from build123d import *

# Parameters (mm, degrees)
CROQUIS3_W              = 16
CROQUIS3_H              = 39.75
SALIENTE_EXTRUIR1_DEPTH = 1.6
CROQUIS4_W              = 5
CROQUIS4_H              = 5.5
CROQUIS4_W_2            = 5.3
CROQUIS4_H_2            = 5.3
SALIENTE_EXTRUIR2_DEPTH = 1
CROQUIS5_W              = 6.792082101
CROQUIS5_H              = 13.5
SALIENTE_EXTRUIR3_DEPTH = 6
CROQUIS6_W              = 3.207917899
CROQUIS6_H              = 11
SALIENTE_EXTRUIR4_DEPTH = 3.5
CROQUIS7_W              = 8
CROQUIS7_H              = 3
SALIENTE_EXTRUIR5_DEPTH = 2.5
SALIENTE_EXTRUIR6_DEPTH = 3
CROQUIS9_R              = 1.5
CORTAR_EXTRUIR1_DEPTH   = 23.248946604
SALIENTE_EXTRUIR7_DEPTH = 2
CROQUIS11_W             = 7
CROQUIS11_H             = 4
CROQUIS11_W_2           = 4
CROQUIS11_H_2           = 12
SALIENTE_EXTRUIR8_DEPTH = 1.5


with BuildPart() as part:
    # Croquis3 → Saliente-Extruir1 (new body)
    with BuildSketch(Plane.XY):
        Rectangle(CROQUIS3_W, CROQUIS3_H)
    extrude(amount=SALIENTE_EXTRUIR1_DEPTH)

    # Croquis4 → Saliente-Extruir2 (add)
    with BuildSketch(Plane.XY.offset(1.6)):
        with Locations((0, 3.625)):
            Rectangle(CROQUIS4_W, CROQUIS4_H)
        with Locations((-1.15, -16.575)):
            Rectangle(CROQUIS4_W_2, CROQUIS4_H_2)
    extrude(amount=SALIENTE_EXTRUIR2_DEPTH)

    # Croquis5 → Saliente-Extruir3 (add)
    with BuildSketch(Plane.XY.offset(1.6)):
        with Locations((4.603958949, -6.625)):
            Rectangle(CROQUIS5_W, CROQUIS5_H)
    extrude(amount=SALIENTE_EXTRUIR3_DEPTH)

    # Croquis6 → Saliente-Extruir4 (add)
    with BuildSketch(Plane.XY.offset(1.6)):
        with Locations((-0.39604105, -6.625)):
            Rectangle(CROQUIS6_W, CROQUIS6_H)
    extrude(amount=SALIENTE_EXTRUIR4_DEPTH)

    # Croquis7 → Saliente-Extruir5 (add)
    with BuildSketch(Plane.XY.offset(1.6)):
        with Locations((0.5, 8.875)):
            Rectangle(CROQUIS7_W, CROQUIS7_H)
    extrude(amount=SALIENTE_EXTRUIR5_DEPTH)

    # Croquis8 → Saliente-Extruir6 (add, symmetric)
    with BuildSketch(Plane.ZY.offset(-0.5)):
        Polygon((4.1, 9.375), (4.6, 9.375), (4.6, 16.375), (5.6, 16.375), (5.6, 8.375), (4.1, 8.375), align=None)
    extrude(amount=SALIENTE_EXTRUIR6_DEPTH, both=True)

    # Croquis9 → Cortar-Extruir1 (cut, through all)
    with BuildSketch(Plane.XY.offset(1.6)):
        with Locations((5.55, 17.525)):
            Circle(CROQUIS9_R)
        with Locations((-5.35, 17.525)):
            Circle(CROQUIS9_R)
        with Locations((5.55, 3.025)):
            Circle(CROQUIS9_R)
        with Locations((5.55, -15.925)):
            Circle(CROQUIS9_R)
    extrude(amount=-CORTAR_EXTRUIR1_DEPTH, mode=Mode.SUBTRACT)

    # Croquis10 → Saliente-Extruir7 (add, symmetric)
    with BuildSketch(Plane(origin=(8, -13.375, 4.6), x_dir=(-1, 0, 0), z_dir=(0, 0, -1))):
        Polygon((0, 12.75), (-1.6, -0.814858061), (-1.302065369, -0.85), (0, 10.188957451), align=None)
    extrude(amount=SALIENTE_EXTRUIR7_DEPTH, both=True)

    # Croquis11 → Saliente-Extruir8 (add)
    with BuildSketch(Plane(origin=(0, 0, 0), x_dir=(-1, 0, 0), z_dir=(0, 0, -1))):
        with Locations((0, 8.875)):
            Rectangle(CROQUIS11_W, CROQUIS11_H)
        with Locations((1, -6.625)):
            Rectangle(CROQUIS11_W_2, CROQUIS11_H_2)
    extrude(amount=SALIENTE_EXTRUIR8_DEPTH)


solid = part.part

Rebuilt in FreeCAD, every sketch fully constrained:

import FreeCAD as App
import Part
import Sketcher
Q = App.Units.Quantity


def add_polygon(sketch, points):
    """Adds a closed chain of lines whose ends are joined by coincident constraints."""
    first, n = sketch.GeometryCount, len(points)
    for a, b in zip(points, points[1:] + points[:1]):
        sketch.addGeometry(Part.LineSegment(App.Vector(*a, 0), App.Vector(*b, 0)), False)
    for i in range(n):
        sketch.addConstraint(Sketcher.Constraint("Coincident", first + i, 2, first + (i + 1) % n, 1))

doc = App.newDocument("Part")
body = doc.addObject("PartDesign::Body", "Body")

sketch1 = doc.addObject("Sketcher::SketchObject", "Sketch")
body.addObject(sketch1)
sketch1.AttachmentSupport = (doc.XY_Plane, [""])
sketch1.MapMode = "FlatFace"
add_polygon(sketch1, [(-8, 19.875), (-8, -19.875), (8, -19.875), (8, 19.875)])
sketch1.addConstraint(Sketcher.Constraint("Vertical", 0))
sketch1.addConstraint(Sketcher.Constraint("Horizontal", 1))
sketch1.addConstraint(Sketcher.Constraint("Vertical", 2))
sketch1.addConstraint(Sketcher.Constraint("Horizontal", 3))
sketch1.addConstraint(Sketcher.Constraint("Symmetric", 0, 2, 2, 2, -1, 1))
sketch1.addConstraint(Sketcher.Constraint("DistanceX", 1, 1, 1, 2, Q("16 mm")))
sketch1.addConstraint(Sketcher.Constraint("DistanceY", 0, 2, 0, 1, Q("39.75 mm")))
pad1 = doc.addObject("PartDesign::Pad", "Pad")
body.addObject(pad1)
pad1.Profile = sketch1
pad1.Length = 1.6

sketch2 = doc.addObject("Sketcher::SketchObject", "Sketch001")
body.addObject(sketch2)
sketch2.AttachmentSupport = (doc.XY_Plane, [""])
sketch2.MapMode = "FlatFace"
sketch2.AttachmentOffset = App.Placement(App.Vector(0, 0, 1.6), App.Rotation())
add_polygon(sketch2, [(-2.5, 6.375), (-2.5, 0.875), (2.5, 0.875), (2.5, 6.375)])
add_polygon(sketch2, [(-3.8, -13.925), (-3.8, -19.225), (1.5, -19.225), (1.5, -13.925)])
sketch2.addConstraint(Sketcher.Constraint("Vertical", 0))
sketch2.addConstraint(Sketcher.Constraint("Horizontal", 1))
sketch2.addConstraint(Sketcher.Constraint("Vertical", 2))
sketch2.addConstraint(Sketcher.Constraint("Horizontal", 3))
sketch2.addConstraint(Sketcher.Constraint("Vertical", 4))
sketch2.addConstraint(Sketcher.Constraint("Horizontal", 5))
sketch2.addConstraint(Sketcher.Constraint("Vertical", 6))
sketch2.addConstraint(Sketcher.Constraint("Horizontal", 7))
sketch2.addConstraint(Sketcher.Constraint("Equal", 7, 4))
sketch2.addConstraint(Sketcher.Constraint("DistanceX", 1, 1, 1, 2, Q("5 mm")))
sketch2.addConstraint(Sketcher.Constraint("DistanceX", 5, 1, 5, 2, Q("5.3 mm")))
sketch2.addConstraint(Sketcher.Constraint("DistanceY", 0, 2, 0, 1, Q("5.5 mm")))
sketch2.addConstraint(Sketcher.Constraint("DistanceX", 5, 2, 1, 2, Q("1 mm")))
sketch2.addConstraint(Sketcher.Constraint("DistanceX", 0, 2, -1, 1, Q("2.5 mm")))
sketch2.addConstraint(Sketcher.Constraint("DistanceY", 4, 2, 0, 2, Q("20.1 mm")))
sketch2.addConstraint(Sketcher.Constraint("DistanceY", -1, 1, 0, 2, Q("0.875 mm")))
pad2 = doc.addObject("PartDesign::Pad", "Pad001")
body.addObject(pad2)
pad2.Profile = sketch2
pad2.Length = 1

sketch3 = doc.addObject("Sketcher::SketchObject", "Sketch002")
body.addObject(sketch3)
sketch3.AttachmentSupport = (doc.XY_Plane, [""])
sketch3.MapMode = "FlatFace"
sketch3.AttachmentOffset = App.Placement(App.Vector(0, 0, 1.6), App.Rotation())
add_polygon(sketch3, [(1.207918, 0.125), (1.207918, -13.375), (8, -13.375), (8, 0.125)])
sketch3.addConstraint(Sketcher.Constraint("Vertical", 0))
sketch3.addConstraint(Sketcher.Constraint("Horizontal", 1))
sketch3.addConstraint(Sketcher.Constraint("Vertical", 2))
sketch3.addConstraint(Sketcher.Constraint("Horizontal", 3))
sketch3.addConstraint(Sketcher.Constraint("DistanceY", 0, 2, 0, 1, Q("13.5 mm")))
sketch3.addConstraint(Sketcher.Constraint("DistanceX", -1, 1, 1, 2, Q("8 mm")))
sketch3.addConstraint(Sketcher.Constraint("DistanceY", 0, 2, -1, 1, Q("13.375 mm")))
sketch3.addConstraint(Sketcher.Constraint("DistanceX", 1, 1, 1, 2, Q("6.792082 mm")))
pad3 = doc.addObject("PartDesign::Pad", "Pad002")
body.addObject(pad3)
pad3.Profile = sketch3
pad3.Length = 6

sketch4 = doc.addObject("Sketcher::SketchObject", "Sketch003")
body.addObject(sketch4)
sketch4.AttachmentSupport = (doc.XY_Plane, [""])
sketch4.MapMode = "FlatFace"
sketch4.AttachmentOffset = App.Placement(App.Vector(0, 0, 1.6), App.Rotation())
add_polygon(sketch4, [(-2, -1.125), (-2, -12.125), (1.207918, -12.125), (1.207918, -1.125)])
sketch4.addConstraint(Sketcher.Constraint("Vertical", 0))
sketch4.addConstraint(Sketcher.Constraint("Horizontal", 1))
sketch4.addConstraint(Sketcher.Constraint("Vertical", 2))
sketch4.addConstraint(Sketcher.Constraint("Horizontal", 3))
sketch4.addConstraint(Sketcher.Constraint("DistanceY", 0, 2, 0, 1, Q("11 mm")))
sketch4.addConstraint(Sketcher.Constraint("DistanceX", 0, 2, -1, 1, Q("2 mm")))
sketch4.addConstraint(Sketcher.Constraint("DistanceY", 0, 2, -1, 1, Q("12.125 mm")))
sketch4.addConstraint(Sketcher.Constraint("DistanceX", 1, 1, 1, 2, Q("3.207918 mm")))
pad4 = doc.addObject("PartDesign::Pad", "Pad003")
body.addObject(pad4)
pad4.Profile = sketch4
pad4.Length = 3.5

sketch5 = doc.addObject("Sketcher::SketchObject", "Sketch004")
body.addObject(sketch5)
sketch5.AttachmentSupport = (doc.XY_Plane, [""])
sketch5.MapMode = "FlatFace"
sketch5.AttachmentOffset = App.Placement(App.Vector(0, 0, 1.6), App.Rotation())
add_polygon(sketch5, [(-3.5, 10.375), (-3.5, 7.375), (4.5, 7.375), (4.5, 10.375)])
sketch5.addConstraint(Sketcher.Constraint("Vertical", 0))
sketch5.addConstraint(Sketcher.Constraint("Horizontal", 1))
sketch5.addConstraint(Sketcher.Constraint("Vertical", 2))
sketch5.addConstraint(Sketcher.Constraint("Horizontal", 3))
sketch5.addConstraint(Sketcher.Constraint("DistanceX", 1, 1, 1, 2, Q("8 mm")))
sketch5.addConstraint(Sketcher.Constraint("DistanceY", 0, 2, 0, 1, Q("3 mm")))
sketch5.addConstraint(Sketcher.Constraint("DistanceX", 0, 2, -1, 1, Q("3.5 mm")))
sketch5.addConstraint(Sketcher.Constraint("DistanceY", -1, 1, 0, 2, Q("7.375 mm")))
pad5 = doc.addObject("PartDesign::Pad", "Pad004")
body.addObject(pad5)
pad5.Profile = sketch5
pad5.Length = 2.5

sketch6 = doc.addObject("Sketcher::SketchObject", "Sketch005")
body.addObject(sketch6)
sketch6.AttachmentSupport = (doc.YZ_Plane, [""])
sketch6.MapMode = "FlatFace"
sketch6.AttachmentOffset = App.Placement(App.Vector(0, 0, 0.5), App.Rotation())
add_polygon(sketch6, [(9.375, 4.6), (9.375, 4.1), (8.375, 4.1), (8.375, 5.6), (16.375, 5.6), (16.375, 4.6)])
sketch6.addConstraint(Sketcher.Constraint("Vertical", 0))
sketch6.addConstraint(Sketcher.Constraint("Horizontal", 1))
sketch6.addConstraint(Sketcher.Constraint("Vertical", 2))
sketch6.addConstraint(Sketcher.Constraint("Horizontal", 3))
sketch6.addConstraint(Sketcher.Constraint("Vertical", 4))
sketch6.addConstraint(Sketcher.Constraint("Horizontal", 5))
sketch6.addConstraint(Sketcher.Constraint("Equal", 1, 4))
sketch6.addConstraint(Sketcher.Constraint("DistanceX", 1, 2, 1, 1, Q("1 mm")))
sketch6.addConstraint(Sketcher.Constraint("DistanceX", 3, 1, 3, 2, Q("8 mm")))
sketch6.addConstraint(Sketcher.Constraint("DistanceY", 0, 2, 0, 1, Q("0.5 mm")))
sketch6.addConstraint(Sketcher.Constraint("DistanceY", -1, 1, 0, 2, Q("4.1 mm")))
sketch6.addConstraint(Sketcher.Constraint("DistanceX", -1, 1, 0, 2, Q("9.375 mm")))
pad6 = doc.addObject("PartDesign::Pad", "Pad005")
body.addObject(pad6)
pad6.Profile = sketch6
pad6.Length = 6
pad6.Midplane = True

sketch7 = doc.addObject("Sketcher::SketchObject", "Sketch006")
body.addObject(sketch7)
sketch7.AttachmentSupport = (doc.XY_Plane, [""])
sketch7.MapMode = "FlatFace"
sketch7.AttachmentOffset = App.Placement(App.Vector(0, 0, 1.6), App.Rotation())
sketch7.addGeometry(Part.Circle(App.Vector(5.55, 17.525, 0), App.Vector(0, 0, 1), 1.5), False)
sketch7.addGeometry(Part.Circle(App.Vector(-5.35, 17.525, 0), App.Vector(0, 0, 1), 1.5), False)
sketch7.addGeometry(Part.Circle(App.Vector(5.55, 3.025, 0), App.Vector(0, 0, 1), 1.5), False)
sketch7.addGeometry(Part.Circle(App.Vector(5.55, -15.925, 0), App.Vector(0, 0, 1), 1.5), False)
sketch7.addConstraint(Sketcher.Constraint("Equal", 0, 1))
sketch7.addConstraint(Sketcher.Constraint("Equal", 1, 2))
sketch7.addConstraint(Sketcher.Constraint("Equal", 2, 3))
sketch7.addConstraint(Sketcher.Constraint("Horizontal", 0, 3, 1, 3))
sketch7.addConstraint(Sketcher.Constraint("Vertical", 0, 3, 2, 3))
sketch7.addConstraint(Sketcher.Constraint("Vertical", 2, 3, 3, 3))
sketch7.addConstraint(Sketcher.Constraint("Diameter", 0, Q("3 mm")))
sketch7.addConstraint(Sketcher.Constraint("DistanceX", 1, 3, 0, 3, Q("10.9 mm")))
sketch7.addConstraint(Sketcher.Constraint("DistanceY", 2, 3, 0, 3, Q("14.5 mm")))
sketch7.addConstraint(Sketcher.Constraint("DistanceX", -1, 1, 0, 3, Q("5.55 mm")))
sketch7.addConstraint(Sketcher.Constraint("DistanceY", 3, 3, 2, 3, Q("18.95 mm")))
sketch7.addConstraint(Sketcher.Constraint("DistanceY", -1, 1, 0, 3, Q("17.525 mm")))
pocket1 = doc.addObject("PartDesign::Pocket", "Pocket")
body.addObject(pocket1)
pocket1.Profile = sketch7
pocket1.Type = "ThroughAll"

sketch8 = doc.addObject("Sketcher::SketchObject", "Sketch007")
body.addObject(sketch8)
sketch8.AttachmentSupport = (doc.XY_Plane, [""])
sketch8.MapMode = "FlatFace"
sketch8.AttachmentOffset = App.Placement(App.Vector(0, 0, 4.6), App.Rotation())
add_polygon(sketch8, [(8, -0.625), (9.6, -14.189858), (9.302065, -14.225), (8, -3.186043)])
sketch8.addConstraint(Sketcher.Constraint("Vertical", 3))
sketch8.addConstraint(Sketcher.Constraint("Perpendicular", 0, 1))
sketch8.addConstraint(Sketcher.Constraint("Perpendicular", 1, 2))
sketch8.addConstraint(Sketcher.Constraint("DistanceX", -1, 1, 2, 2, Q("8 mm")))
sketch8.addConstraint(Sketcher.Constraint("Distance", 1, Q("0.3 mm")))
sketch8.addConstraint(Sketcher.Constraint("DistanceX", -1, 1, 0, 2, Q("9.6 mm")))
sketch8.addConstraint(Sketcher.Constraint("DistanceY", 1, 2, 3, 2, Q("13.6 mm")))
sketch8.addConstraint(Sketcher.Constraint("DistanceY", 1, 2, -1, 1, Q("14.225 mm")))
pad7 = doc.addObject("PartDesign::Pad", "Pad006")
body.addObject(pad7)
pad7.Profile = sketch8
pad7.Length = 4
pad7.Midplane = True

sketch9 = doc.addObject("Sketcher::SketchObject", "Sketch008")
body.addObject(sketch9)
sketch9.AttachmentSupport = (doc.XY_Plane, [""])
sketch9.MapMode = "FlatFace"
add_polygon(sketch9, [(3.5, 10.875), (3.5, 6.875), (-3.5, 6.875), (-3.5, 10.875)])
add_polygon(sketch9, [(1, -0.625), (1, -12.625), (-3, -12.625), (-3, -0.625)])
sketch9.addConstraint(Sketcher.Constraint("Vertical", 0))
sketch9.addConstraint(Sketcher.Constraint("Horizontal", 1))
sketch9.addConstraint(Sketcher.Constraint("Vertical", 2))
sketch9.addConstraint(Sketcher.Constraint("Horizontal", 3))
sketch9.addConstraint(Sketcher.Constraint("Vertical", 4))
sketch9.addConstraint(Sketcher.Constraint("Horizontal", 5))
sketch9.addConstraint(Sketcher.Constraint("Vertical", 6))
sketch9.addConstraint(Sketcher.Constraint("Horizontal", 7))
sketch9.addConstraint(Sketcher.Constraint("Equal", 7, 0))
sketch9.addConstraint(Sketcher.Constraint("DistanceX", 1, 2, 1, 1, Q("7 mm")))
sketch9.addConstraint(Sketcher.Constraint("DistanceX", 5, 2, 5, 1, Q("4 mm")))
sketch9.addConstraint(Sketcher.Constraint("DistanceY", 4, 2, 4, 1, Q("12 mm")))
sketch9.addConstraint(Sketcher.Constraint("DistanceX", -1, 1, 4, 2, Q("1 mm")))
sketch9.addConstraint(Sketcher.Constraint("DistanceX", -1, 1, 0, 2, Q("3.5 mm")))
sketch9.addConstraint(Sketcher.Constraint("DistanceY", 4, 2, 0, 2, Q("19.5 mm")))
sketch9.addConstraint(Sketcher.Constraint("DistanceY", -1, 1, 0, 2, Q("6.875 mm")))
pad8 = doc.addObject("PartDesign::Pad", "Pad007")
body.addObject(pad8)
pad8.Profile = sketch9
pad8.Length = 1.5
pad8.Reversed = True

doc.recompute()
